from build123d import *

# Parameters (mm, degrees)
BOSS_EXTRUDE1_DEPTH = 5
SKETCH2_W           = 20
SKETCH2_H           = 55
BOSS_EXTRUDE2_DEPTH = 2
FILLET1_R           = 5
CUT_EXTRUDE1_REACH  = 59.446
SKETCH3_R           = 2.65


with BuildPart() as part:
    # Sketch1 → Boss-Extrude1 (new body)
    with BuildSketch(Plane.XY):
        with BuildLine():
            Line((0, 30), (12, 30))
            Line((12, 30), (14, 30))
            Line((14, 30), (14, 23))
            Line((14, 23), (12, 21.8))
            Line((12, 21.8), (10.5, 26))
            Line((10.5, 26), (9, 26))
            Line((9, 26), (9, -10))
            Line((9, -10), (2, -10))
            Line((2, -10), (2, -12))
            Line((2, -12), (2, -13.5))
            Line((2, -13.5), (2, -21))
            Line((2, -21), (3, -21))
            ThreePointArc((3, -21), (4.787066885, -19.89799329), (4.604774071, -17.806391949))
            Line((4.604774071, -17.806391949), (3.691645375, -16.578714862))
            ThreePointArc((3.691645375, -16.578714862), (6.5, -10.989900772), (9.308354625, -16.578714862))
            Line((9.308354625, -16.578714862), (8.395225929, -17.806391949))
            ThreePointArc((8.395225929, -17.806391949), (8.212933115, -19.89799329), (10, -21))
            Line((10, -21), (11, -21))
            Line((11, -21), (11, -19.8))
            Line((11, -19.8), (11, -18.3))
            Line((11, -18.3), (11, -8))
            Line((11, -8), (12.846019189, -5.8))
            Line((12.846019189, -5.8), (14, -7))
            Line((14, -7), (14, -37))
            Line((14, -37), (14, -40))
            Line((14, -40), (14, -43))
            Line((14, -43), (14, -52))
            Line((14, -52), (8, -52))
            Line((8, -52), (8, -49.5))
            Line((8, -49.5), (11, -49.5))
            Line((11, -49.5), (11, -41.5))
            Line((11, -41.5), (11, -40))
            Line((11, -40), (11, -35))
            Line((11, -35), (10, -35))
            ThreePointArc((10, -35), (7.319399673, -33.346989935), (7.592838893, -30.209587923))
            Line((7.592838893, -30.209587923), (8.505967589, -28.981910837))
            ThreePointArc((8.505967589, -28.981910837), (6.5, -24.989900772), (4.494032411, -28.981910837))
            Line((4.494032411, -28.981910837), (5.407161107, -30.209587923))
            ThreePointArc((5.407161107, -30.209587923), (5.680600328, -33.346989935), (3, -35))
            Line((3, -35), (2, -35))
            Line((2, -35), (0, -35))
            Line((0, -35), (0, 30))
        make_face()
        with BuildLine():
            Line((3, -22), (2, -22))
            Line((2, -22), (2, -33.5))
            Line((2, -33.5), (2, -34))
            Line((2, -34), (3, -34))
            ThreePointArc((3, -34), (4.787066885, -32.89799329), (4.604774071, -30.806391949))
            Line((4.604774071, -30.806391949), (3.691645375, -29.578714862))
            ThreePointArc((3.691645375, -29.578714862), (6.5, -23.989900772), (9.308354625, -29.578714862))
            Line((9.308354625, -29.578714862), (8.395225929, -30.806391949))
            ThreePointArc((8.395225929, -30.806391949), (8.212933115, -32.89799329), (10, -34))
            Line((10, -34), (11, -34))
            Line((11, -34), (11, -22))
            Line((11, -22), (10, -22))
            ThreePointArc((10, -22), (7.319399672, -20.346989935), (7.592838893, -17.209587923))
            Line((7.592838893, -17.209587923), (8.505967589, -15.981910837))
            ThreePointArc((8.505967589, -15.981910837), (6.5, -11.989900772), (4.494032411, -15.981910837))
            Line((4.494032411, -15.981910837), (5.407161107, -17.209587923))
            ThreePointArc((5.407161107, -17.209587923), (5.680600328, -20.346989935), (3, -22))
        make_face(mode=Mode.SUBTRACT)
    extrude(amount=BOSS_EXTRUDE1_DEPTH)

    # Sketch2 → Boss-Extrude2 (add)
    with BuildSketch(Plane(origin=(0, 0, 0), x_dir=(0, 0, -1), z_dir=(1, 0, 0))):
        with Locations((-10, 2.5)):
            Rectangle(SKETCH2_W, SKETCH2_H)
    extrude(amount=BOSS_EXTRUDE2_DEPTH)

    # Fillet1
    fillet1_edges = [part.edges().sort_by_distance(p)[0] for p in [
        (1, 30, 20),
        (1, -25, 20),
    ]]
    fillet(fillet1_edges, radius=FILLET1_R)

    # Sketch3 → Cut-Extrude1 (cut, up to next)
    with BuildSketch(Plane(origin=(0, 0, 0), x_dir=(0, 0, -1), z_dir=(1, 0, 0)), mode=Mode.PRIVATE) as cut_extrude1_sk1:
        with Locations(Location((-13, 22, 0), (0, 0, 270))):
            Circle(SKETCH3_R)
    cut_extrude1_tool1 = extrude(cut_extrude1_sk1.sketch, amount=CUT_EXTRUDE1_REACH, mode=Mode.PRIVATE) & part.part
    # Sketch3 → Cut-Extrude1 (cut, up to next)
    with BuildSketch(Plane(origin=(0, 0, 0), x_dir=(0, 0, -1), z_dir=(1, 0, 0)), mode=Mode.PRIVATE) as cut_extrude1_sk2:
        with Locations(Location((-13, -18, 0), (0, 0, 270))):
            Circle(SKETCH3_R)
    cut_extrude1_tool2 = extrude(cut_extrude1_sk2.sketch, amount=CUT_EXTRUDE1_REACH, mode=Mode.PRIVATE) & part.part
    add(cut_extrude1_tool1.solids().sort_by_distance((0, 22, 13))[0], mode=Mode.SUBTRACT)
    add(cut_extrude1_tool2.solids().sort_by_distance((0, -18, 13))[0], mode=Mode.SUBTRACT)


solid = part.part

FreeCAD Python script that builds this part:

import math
import FreeCAD as App
import Part
import Sketcher
from FreeCAD import Vector
Q = App.Units.Quantity


def edges_at(feature, points):
    """Names of the edges that pass closest to the given points."""
    edges = feature.Shape.Edges
    near = lambda p: min(range(len(edges)), key=lambda i: edges[i].distToShape(Part.Vertex(*p))[0])
    return sorted({f"Edge{near(p) + 1}" for p in points})


def add_polygon(sketch, points):
    """Adds a closed chain of lines whose ends are joined by coincident constraints."""
    first, n = sketch.GeometryCount, len(points)
    for a, b in zip(points, points[1:] + points[:1]):
        sketch.addGeometry(Part.LineSegment(App.Vector(*a, 0), App.Vector(*b, 0)), False)
    for i in range(n):
        sketch.addConstraint(Sketcher.Constraint("Coincident", first + i, 2, first + (i + 1) % n, 1))

doc = App.newDocument("Part")
body = doc.addObject("PartDesign::Body", "Body")

# Sketch on XY plane
sketch1 = doc.addObject("Sketcher::SketchObject", "Sketch")
body.addObject(sketch1)
sketch1.AttachmentSupport = (doc.XY_Plane, [""])
sketch1.MapMode = "FlatFace"
sketch1.addGeometry([
    Part.LineSegment(Vector(14, 30, 0), Vector(0, 30, 0)),  # 0
    Part.LineSegment(Vector(0, 30, 0), Vector(0, -35, 0)),  # 1
    Part.LineSegment(Vector(0, -35, 0), Vector(3, -35, 0)),  # 2
    Part.ArcOfCircle(Part.Circle(Vector(3, -32, 0), Vector(0, 0, 1), 3), math.radians(-90), math.radians(36.641344)),  # 3
    Part.LineSegment(Vector(5.407161, -30.209588, 0), Vector(4.494032, -28.981911, 0)),  # 4
    Part.ArcOfCircle(Part.Circle(Vector(6.5, -27.489901, 0), Vector(0, 0, 1), 2.5), math.radians(-36.641344), math.radians(216.641344)),  # 5
    Part.LineSegment(Vector(8.505968, -28.981911, 0), Vector(7.592839, -30.209588, 0)),  # 6
    Part.ArcOfCircle(Part.Circle(Vector(10, -32, 0), Vector(0, 0, 1), 3), math.radians(143.358656), math.radians(270)),  # 7
    Part.LineSegment(Vector(10, -35, 0), Vector(11, -35, 0)),  # 8
    Part.LineSegment(Vector(11, -35, 0), Vector(11, -49.5, 0)),  # 9
    Part.LineSegment(Vector(11, -49.5, 0), Vector(8, -49.5, 0)),  # 10
    Part.LineSegment(Vector(8, -49.5, 0), Vector(8, -52, 0)),  # 11
    Part.LineSegment(Vector(8, -52, 0), Vector(14, -52, 0)),  # 12
    Part.LineSegment(Vector(14, -52, 0), Vector(14, -7, 0)),  # 13
    Part.LineSegment(Vector(14, -7, 0), Vector(12.846019, -5.8, 0)),  # 14
    Part.LineSegment(Vector(12.846019, -5.8, 0), Vector(11, -8, 0)),  # 15
    Part.LineSegment(Vector(11, -8, 0), Vector(11, -21, 0)),  # 16
    Part.LineSegment(Vector(11, -21, 0), Vector(10, -21, 0)),  # 17
    Part.ArcOfCircle(Part.Circle(Vector(10, -19, 0), Vector(0, 0, 1), 2), math.radians(143.358656), math.radians(270)),  # 18
    Part.LineSegment(Vector(8.395226, -17.806392, 0), Vector(9.308355, -16.578715, 0)),  # 19
    Part.ArcOfCircle(Part.Circle(Vector(6.5, -14.489901, 0), Vector(0, 0, 1), 3.5), math.radians(-36.641344), math.radians(216.641344)),  # 20
    Part.LineSegment(Vector(3.691645, -16.578715, 0), Vector(4.604774, -17.806392, 0)),  # 21
    Part.ArcOfCircle(Part.Circle(Vector(3, -19, 0), Vector(0, 0, 1), 2), math.radians(-90), math.radians(36.641344)),  # 22
    Part.LineSegment(Vector(3, -21, 0), Vector(2, -21, 0)),  # 23
    Part.LineSegment(Vector(2, -21, 0), Vector(2, -10, 0)),  # 24
    Part.LineSegment(Vector(2, -10, 0), Vector(9, -10, 0)),  # 25
    Part.LineSegment(Vector(9, -10, 0), Vector(9, 26, 0)),  # 26
    Part.LineSegment(Vector(9, 26, 0), Vector(10.5, 26, 0)),  # 27
    Part.LineSegment(Vector(10.5, 26, 0), Vector(12, 21.8, 0)),  # 28
    Part.LineSegment(Vector(12, 21.8, 0), Vector(14, 23, 0)),  # 29
    Part.LineSegment(Vector(14, 23, 0), Vector(14, 30, 0)),  # 30
    Part.ArcOfCircle(Part.Circle(Vector(3, -19, 0), Vector(0, 0, 1), 3), math.radians(-90), math.radians(36.641344)),  # 31
    Part.LineSegment(Vector(5.407161, -17.209588, 0), Vector(4.494032, -15.981911, 0)),  # 32
    Part.ArcOfCircle(Part.Circle(Vector(6.5, -14.489901, 0), Vector(0, 0, 1), 2.5), math.radians(-36.641344), math.radians(216.641344)),  # 33
    Part.LineSegment(Vector(8.505968, -15.981911, 0), Vector(7.592839, -17.209588, 0)),  # 34
    Part.ArcOfCircle(Part.Circle(Vector(10, -19, 0), Vector(0, 0, 1), 3), math.radians(143.358656), math.radians(270)),  # 35
    Part.LineSegment(Vector(10, -22, 0), Vector(11, -22, 0)),  # 36
    Part.LineSegment(Vector(11, -22, 0), Vector(11, -34, 0)),  # 37
    Part.LineSegment(Vector(11, -34, 0), Vector(10, -34, 0)),  # 38
    Part.ArcOfCircle(Part.Circle(Vector(10, -32, 0), Vector(0, 0, 1), 2), math.radians(143.358656), math.radians(270)),  # 39
    Part.LineSegment(Vector(8.395226, -30.806392, 0), Vector(9.308355, -29.578715, 0)),  # 40
    Part.ArcOfCircle(Part.Circle(Vector(6.5, -27.489901, 0), Vector(0, 0, 1), 3.5), math.radians(-36.641344), math.radians(216.641344)),  # 41
    Part.LineSegment(Vector(3.691645, -29.578715, 0), Vector(4.604774, -30.806392, 0)),  # 42
    Part.ArcOfCircle(Part.Circle(Vector(3, -32, 0), Vector(0, 0, 1), 2), math.radians(-90), math.radians(36.641344)),  # 43
    Part.LineSegment(Vector(3, -34, 0), Vector(2, -34, 0)),  # 44
    Part.LineSegment(Vector(2, -34, 0), Vector(2, -22, 0)),  # 45
    Part.LineSegment(Vector(2, -22, 0), Vector(3, -22, 0)),  # 46
], False)
sketch1.addConstraint([
    Sketcher.Constraint("Coincident", 0, 2, 1, 1),
    Sketcher.Constraint("Coincident", 1, 2, 2, 1),
    Sketcher.Constraint("Tangent", 2, 2, 3, 1),
    Sketcher.Constraint("Tangent", 3, 2, 4, 1),
    Sketcher.Constraint("Tangent", 4, 2, 5, 2),
    Sketcher.Constraint("Tangent", 5, 1, 6, 1),
    Sketcher.Constraint("Tangent", 6, 2, 7, 1),
    Sketcher.Constraint("Tangent", 7, 2, 8, 1),
    Sketcher.Constraint("Coincident", 8, 2, 9, 1),
    Sketcher.Constraint("Coincident", 9, 2, 10, 1),
    Sketcher.Constraint("Coincident", 10, 2, 11, 1),
    Sketcher.Constraint("Coincident", 11, 2, 12, 1),
    Sketcher.Constraint("Coincident", 12, 2, 13, 1),
    Sketcher.Constraint("Coincident", 13, 2, 14, 1),
    Sketcher.Constraint("Coincident", 14, 2, 15, 1),
    Sketcher.Constraint("Coincident", 15, 2, 16, 1),
    Sketcher.Constraint("Coincident", 16, 2, 17, 1),
    Sketcher.Constraint("Tangent", 17, 2, 18, 2),
    Sketcher.Constraint("Tangent", 18, 1, 19, 1),
    Sketcher.Constraint("Tangent", 19, 2, 20, 1),
    Sketcher.Constraint("Tangent", 20, 2, 21, 1),
    Sketcher.Constraint("Tangent", 21, 2, 22, 2),
    Sketcher.Constraint("Tangent", 22, 1, 23, 1),
    Sketcher.Constraint("Coincident", 23, 2, 24, 1),
    Sketcher.Constraint("Coincident", 24, 2, 25, 1),
    Sketcher.Constraint("Coincident", 25, 2, 26, 1),
    Sketcher.Constraint("Coincident", 26, 2, 27, 1),
    Sketcher.Constraint("Coincident", 27, 2, 28, 1),
    Sketcher.Constraint("Coincident", 28, 2, 29, 1),
    Sketcher.Constraint("Coincident", 29, 2, 30, 1),
    Sketcher.Constraint("Coincident", 30, 2, 0, 1),
    Sketcher.Constraint("Tangent", 31, 2, 32, 1),
    Sketcher.Constraint("Tangent", 32, 2, 33, 2),
    Sketcher.Constraint("Tangent", 33, 1, 34, 1),
    Sketcher.Constraint("Tangent", 34, 2, 35, 1),
    Sketcher.Constraint("Tangent", 35, 2, 36, 1),
    Sketcher.Constraint("Coincident", 36, 2, 37, 1),
    Sketcher.Constraint("Coincident", 37, 2, 38, 1),
    Sketcher.Constraint("Tangent", 38, 2, 39, 2),
    Sketcher.Constraint("Tangent", 39, 1, 40, 1),
    Sketcher.Constraint("Tangent", 40, 2, 41, 1),
    Sketcher.Constraint("Tangent", 41, 2, 42, 1),
    Sketcher.Constraint("Tangent", 42, 2, 43, 2),
    Sketcher.Constraint("Tangent", 43, 1, 44, 1),
    Sketcher.Constraint("Coincident", 44, 2, 45, 1),
    Sketcher.Constraint("Coincident", 45, 2, 46, 1),
    Sketcher.Constraint("Tangent", 46, 2, 31, 1),
    Sketcher.Constraint("Horizontal", 0),
    Sketcher.Constraint("Vertical", 1),
    Sketcher.Constraint("Horizontal", 2),
    Sketcher.Constraint("Horizontal", 8),
    Sketcher.Constraint("Vertical", 9),
    Sketcher.Constraint("Horizontal", 10),
    Sketcher.Constraint("Vertical", 11),
    Sketcher.Constraint("Horizontal", 12),
    Sketcher.Constraint("Vertical", 13),
    Sketcher.Constraint("Vertical", 16),
    Sketcher.Constraint("Horizontal", 17),
    Sketcher.Constraint("Horizontal", 23),
    Sketcher.Constraint("Vertical", 24),
    Sketcher.Constraint("Horizontal", 25),
    Sketcher.Constraint("Vertical", 26),
    Sketcher.Constraint("Horizontal", 27),
    Sketcher.Constraint("Vertical", 30),
    Sketcher.Constraint("Horizontal", 36),
    Sketcher.Constraint("Vertical", 37),
    Sketcher.Constraint("Horizontal", 38),
    Sketcher.Constraint("Horizontal", 44),
    Sketcher.Constraint("Vertical", 45),
    Sketcher.Constraint("Horizontal", 46),
    Sketcher.Constraint("Coincident", 31, 3, 22, 3),
    Sketcher.Constraint("Coincident", 33, 3, 20, 3),
    Sketcher.Constraint("Coincident", 35, 3, 18, 3),
    Sketcher.Constraint("Coincident", 39, 3, 7, 3),
    Sketcher.Constraint("Coincident", 41, 3, 5, 3),
    Sketcher.Constraint("Coincident", 43, 3, 3, 3),
    Sketcher.Constraint("Equal", 3, 7),
    Sketcher.Constraint("Equal", 18, 22),
    Sketcher.Constraint("Equal", 7, 31),
    Sketcher.Constraint("Equal", 5, 33),
    Sketcher.Constraint("Equal", 31, 35),
    Sketcher.Constraint("Equal", 22, 39),
    Sketcher.Constraint("Equal", 20, 41),
    Sketcher.Constraint("Equal", 39, 43),
    Sketcher.Constraint("PointOnObject", 0, 2, -2),
    Sketcher.Constraint("Parallel", 6, 19),
    Sketcher.Constraint("Parallel", 4, 21),
    Sketcher.Constraint("Parallel", 21, 32),
    Sketcher.Constraint("Horizontal", 3, 3, 7, 3),
    Sketcher.Constraint("Horizontal", 18, 3, 22, 3),
    Sketcher.Constraint("Horizontal", 4, 2, 5, 1),
    Sketcher.Constraint("Vertical", 7, 3, 18, 3),
    Sketcher.Constraint("Vertical", 5, 3, 20, 3),
    Sketcher.Constraint("Vertical", 9, 2, 15, 2),
    Sketcher.Constraint("Vertical", 13, 2, 29, 2),
    Sketcher.Constraint("Vertical", 16, 2, 36, 2),
    Sketcher.Constraint("Vertical", 24, 2, 44, 2),
    Sketcher.Constraint("Equal", 2, 10),
    Sketcher.Constraint("Equal", 17, 23),
    Sketcher.Constraint("Equal", 25, 30),
    Sketcher.Constraint("Radius", 3, Q("3 mm")),
    Sketcher.Constraint("Radius", 18, Q("2 mm")),
    Sketcher.Constraint("Radius", 5, Q("2.5 mm")),
    Sketcher.Constraint("DistanceX", 0, 2, 0, 1, Q("14 mm")),
    Sketcher.Constraint("DistanceX", 2, 1, 2, 2, Q("3 mm")),
    Sketcher.Constraint("DistanceX", 8, 1, 8, 2, Q("1 mm")),
    Sketcher.Constraint("DistanceX", 12, 1, 12, 2, Q("6 mm")),
    Sketcher.Constraint("DistanceX", 25, 1, 25, 2, Q("7 mm")),
    Sketcher.Constraint("DistanceY", 1, 2, 1, 1, Q("65 mm")),
    Sketcher.Constraint("DistanceY", 13, 1, 13, 2, Q("45 mm")),
    Sketcher.Constraint("DistanceY", 16, 2, 16, 1, Q("13 mm")),
    Sketcher.Constraint("DistanceY", 24, 1, 24, 2, Q("11 mm")),
    Sketcher.Constraint("DistanceY", 26, 1, 26, 2, Q("36 mm")),
    Sketcher.Constraint("DistanceY", 37, 2, 37, 1, Q("12 mm")),
    Sketcher.Constraint("Angle", 15, Q("-130 deg")),
    Sketcher.Constraint("DistanceX", 27, 1, 27, 2, Q("1.5 mm")),
    Sketcher.Constraint("DistanceY", 9, 2, 9, 1, Q("14.5 mm")),
    Sketcher.Constraint("DistanceY", 11, 2, 11, 1, Q("2.5 mm")),
    Sketcher.Constraint("DistanceY", 3, 3, -1, 1, Q("32 mm")),
    Sketcher.Constraint("DistanceX", -1, 1, 28, 2, Q("12 mm")),
    Sketcher.Constraint("DistanceY", 14, 2, -1, 1, Q("5.8 mm")),
    Sketcher.Constraint("DistanceY", -1, 1, 28, 2, Q("21.8 mm")),
    Sketcher.Constraint("DistanceY", 5, 3, -1, 1, Q("27.489901 mm")),
])
pad1 = doc.addObject("PartDesign::Pad", "Pad")
body.addObject(pad1)
pad1.Profile = sketch1
pad1.Length = 5

# Sketch on YZ plane
sketch2 = doc.addObject("Sketcher::SketchObject", "Sketch001")
body.addObject(sketch2)
sketch2.AttachmentSupport = (doc.YZ_Plane, [""])
sketch2.MapMode = "FlatFace"
add_polygon(sketch2, [(30, 20), (-25, 20), (-25, 0), (30, 0)])  # lines 0-3
sketch2.addConstraint([
    Sketcher.Constraint("Horizontal", 0),
    Sketcher.Constraint("Vertical", 1),
    Sketcher.Constraint("Horizontal", 2),
    Sketcher.Constraint("Vertical", 3),
    Sketcher.Constraint("PointOnObject", 1, 2, -1),
    Sketcher.Constraint("DistanceX", 0, 2, 0, 1, Q("55 mm")),
    Sketcher.Constraint("DistanceY", 1, 2, 1, 1, Q("20 mm")),
    Sketcher.Constraint("DistanceX", 0, 2, -1, 1, Q("25 mm")),
])
pad2 = doc.addObject("PartDesign::Pad", "Pad001")
body.addObject(pad2)
pad2.Profile = sketch2
pad2.Length = 2
doc.recompute()

fillet = doc.addObject("PartDesign::Fillet", "Fillet")
body.addObject(fillet)
fillet.Base = (pad2, edges_at(pad2, [(1, 30, 20), (1, -25, 20)]))
fillet.Radius = 5

# Sketch on YZ plane
sketch3 = doc.addObject("Sketcher::SketchObject", "Sketch002")
body.addObject(sketch3)
sketch3.AttachmentSupport = (doc.YZ_Plane, [""])
sketch3.MapMode = "FlatFace"
sketch3.addGeometry(Part.Circle(Vector(22, 13, 0), Vector(0, 0, 1), 2.65), False)
sketch3.addConstraint([
    Sketcher.Constraint("Diameter", 0, Q("5.3 mm")),
    Sketcher.Constraint("DistanceX", -1, 1, 0, 3, Q("22 mm")),
    Sketcher.Constraint("DistanceY", -1, 1, 0, 3, Q("13 mm")),
])
pocket1 = doc.addObject("PartDesign::Pocket", "Pocket")
body.addObject(pocket1)
pocket1.Profile = sketch3
pocket1.Type = "UpToFirst"
pocket1.Reversed = True

# Sketch on YZ plane
sketch4 = doc.addObject("Sketcher::SketchObject", "Sketch003")
body.addObject(sketch4)
sketch4.AttachmentSupport = (doc.YZ_Plane, [""])
sketch4.MapMode = "FlatFace"
sketch4.addGeometry(Part.Circle(Vector(-18, 13, 0), Vector(0, 0, 1), 2.65), False)
sketch4.addConstraint([
    Sketcher.Constraint("Diameter", 0, Q("5.3 mm")),
    Sketcher.Constraint("DistanceX", 0, 3, -1, 1, Q("18 mm")),
    Sketcher.Constraint("DistanceY", -1, 1, 0, 3, Q("13 mm")),
])
pocket2 = doc.addObject("PartDesign::Pocket", "Pocket001")
body.addObject(pocket2)
pocket2.Profile = sketch4
pocket2.Type = "UpToFirst"
pocket2.Reversed = True

doc.recompute()
